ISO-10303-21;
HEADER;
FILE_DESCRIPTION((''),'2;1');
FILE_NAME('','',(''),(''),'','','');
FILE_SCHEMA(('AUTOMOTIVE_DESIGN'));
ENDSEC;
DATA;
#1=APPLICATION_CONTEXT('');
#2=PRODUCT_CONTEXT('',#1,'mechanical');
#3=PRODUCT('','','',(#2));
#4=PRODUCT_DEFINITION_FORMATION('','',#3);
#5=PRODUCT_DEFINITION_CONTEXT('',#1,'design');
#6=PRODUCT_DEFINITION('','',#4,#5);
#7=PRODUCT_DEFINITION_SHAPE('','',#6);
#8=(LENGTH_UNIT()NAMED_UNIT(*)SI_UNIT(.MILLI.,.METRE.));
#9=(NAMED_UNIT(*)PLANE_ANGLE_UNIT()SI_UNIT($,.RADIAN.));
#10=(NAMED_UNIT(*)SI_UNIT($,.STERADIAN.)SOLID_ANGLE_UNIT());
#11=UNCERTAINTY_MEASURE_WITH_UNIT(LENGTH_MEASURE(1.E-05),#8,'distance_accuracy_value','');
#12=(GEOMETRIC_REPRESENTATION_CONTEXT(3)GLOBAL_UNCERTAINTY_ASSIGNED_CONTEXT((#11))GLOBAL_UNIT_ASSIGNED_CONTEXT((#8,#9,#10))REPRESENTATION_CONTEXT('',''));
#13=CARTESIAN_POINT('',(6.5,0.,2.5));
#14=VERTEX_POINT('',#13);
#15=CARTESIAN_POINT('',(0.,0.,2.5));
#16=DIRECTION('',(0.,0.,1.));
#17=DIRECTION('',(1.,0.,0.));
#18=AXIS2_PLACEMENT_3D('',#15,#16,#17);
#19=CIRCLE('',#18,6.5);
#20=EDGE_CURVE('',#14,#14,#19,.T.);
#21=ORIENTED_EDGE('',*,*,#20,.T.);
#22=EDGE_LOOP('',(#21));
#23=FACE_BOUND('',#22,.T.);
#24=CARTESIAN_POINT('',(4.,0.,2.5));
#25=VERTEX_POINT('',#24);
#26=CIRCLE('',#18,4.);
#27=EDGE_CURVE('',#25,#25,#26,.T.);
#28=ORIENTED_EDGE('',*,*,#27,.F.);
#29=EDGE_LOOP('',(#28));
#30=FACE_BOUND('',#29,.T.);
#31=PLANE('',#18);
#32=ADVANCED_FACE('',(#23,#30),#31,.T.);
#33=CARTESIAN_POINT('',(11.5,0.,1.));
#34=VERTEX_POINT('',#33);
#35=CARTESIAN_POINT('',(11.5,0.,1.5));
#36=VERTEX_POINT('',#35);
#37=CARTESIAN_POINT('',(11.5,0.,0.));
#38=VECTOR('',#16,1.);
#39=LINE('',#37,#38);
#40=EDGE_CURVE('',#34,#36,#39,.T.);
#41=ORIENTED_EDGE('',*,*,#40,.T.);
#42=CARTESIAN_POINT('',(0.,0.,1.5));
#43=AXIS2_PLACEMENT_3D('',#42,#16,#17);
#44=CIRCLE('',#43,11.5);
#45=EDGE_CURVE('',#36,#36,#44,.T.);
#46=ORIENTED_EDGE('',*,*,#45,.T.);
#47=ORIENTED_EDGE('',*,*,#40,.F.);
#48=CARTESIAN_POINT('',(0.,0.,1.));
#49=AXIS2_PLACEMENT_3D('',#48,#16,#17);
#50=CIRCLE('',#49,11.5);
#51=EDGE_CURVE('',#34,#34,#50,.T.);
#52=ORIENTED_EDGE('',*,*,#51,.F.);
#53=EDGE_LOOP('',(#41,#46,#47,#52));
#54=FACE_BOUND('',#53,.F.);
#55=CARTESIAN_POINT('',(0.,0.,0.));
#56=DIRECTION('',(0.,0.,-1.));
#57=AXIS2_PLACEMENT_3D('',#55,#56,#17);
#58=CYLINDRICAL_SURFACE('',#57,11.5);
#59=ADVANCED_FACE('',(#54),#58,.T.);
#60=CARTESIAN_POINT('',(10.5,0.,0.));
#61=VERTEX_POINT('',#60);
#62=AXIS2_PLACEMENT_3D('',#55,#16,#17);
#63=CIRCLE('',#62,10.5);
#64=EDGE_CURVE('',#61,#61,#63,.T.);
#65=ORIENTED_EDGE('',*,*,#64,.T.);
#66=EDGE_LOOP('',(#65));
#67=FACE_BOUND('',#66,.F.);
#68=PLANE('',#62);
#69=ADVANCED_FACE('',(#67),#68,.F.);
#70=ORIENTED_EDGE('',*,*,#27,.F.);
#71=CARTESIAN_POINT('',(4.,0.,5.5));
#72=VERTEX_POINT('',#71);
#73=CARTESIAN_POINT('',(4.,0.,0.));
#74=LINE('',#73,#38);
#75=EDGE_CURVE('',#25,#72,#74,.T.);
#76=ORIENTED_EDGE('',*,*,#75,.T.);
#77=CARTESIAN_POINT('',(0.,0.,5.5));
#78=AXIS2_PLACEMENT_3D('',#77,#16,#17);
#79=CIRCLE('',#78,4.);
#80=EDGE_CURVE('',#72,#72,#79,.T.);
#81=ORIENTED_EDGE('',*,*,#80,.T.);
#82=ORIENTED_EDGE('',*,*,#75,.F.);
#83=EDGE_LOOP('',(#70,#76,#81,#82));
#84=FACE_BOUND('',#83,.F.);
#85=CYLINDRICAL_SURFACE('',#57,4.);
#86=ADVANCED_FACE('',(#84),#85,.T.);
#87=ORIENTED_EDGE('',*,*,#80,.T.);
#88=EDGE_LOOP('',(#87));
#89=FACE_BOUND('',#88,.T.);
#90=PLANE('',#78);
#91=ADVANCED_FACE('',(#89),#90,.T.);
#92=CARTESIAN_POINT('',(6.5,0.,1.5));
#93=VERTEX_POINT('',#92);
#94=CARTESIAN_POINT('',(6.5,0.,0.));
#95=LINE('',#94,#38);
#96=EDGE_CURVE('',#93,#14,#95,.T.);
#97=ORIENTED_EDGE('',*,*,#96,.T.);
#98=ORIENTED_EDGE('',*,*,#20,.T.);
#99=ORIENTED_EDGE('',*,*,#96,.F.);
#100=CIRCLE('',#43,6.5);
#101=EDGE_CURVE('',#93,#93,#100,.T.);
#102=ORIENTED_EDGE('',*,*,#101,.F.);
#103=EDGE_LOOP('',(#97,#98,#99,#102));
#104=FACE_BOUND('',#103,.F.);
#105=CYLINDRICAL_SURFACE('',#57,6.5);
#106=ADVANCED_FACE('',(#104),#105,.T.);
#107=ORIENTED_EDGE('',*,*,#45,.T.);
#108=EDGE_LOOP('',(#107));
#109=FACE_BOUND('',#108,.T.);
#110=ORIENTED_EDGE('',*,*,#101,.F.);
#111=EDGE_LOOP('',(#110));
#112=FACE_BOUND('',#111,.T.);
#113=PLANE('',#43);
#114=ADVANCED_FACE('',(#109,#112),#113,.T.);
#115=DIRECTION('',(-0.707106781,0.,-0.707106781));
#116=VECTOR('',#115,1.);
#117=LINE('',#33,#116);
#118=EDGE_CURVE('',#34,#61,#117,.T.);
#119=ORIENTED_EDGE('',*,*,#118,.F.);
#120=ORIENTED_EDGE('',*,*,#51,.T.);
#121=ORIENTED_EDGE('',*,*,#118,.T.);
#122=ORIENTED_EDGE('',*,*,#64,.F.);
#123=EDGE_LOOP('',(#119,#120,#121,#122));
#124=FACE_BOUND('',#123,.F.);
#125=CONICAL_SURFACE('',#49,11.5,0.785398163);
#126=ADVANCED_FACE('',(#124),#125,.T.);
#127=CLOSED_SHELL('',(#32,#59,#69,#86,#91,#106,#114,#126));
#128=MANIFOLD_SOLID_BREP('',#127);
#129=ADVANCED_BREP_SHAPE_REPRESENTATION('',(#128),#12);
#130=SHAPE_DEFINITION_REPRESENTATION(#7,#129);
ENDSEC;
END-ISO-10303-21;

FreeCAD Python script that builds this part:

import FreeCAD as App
import Part
import Sketcher
from FreeCAD import Vector
Q = App.Units.Quantity


def edges_at(feature, points):
    """Names of the edges that pass closest to the given points."""
    edges = feature.Shape.Edges
    near = lambda p: min(range(len(edges)), key=lambda i: edges[i].distToShape(Part.Vertex(*p))[0])
    return sorted({f"Edge{near(p) + 1}" for p in points})

doc = App.newDocument("Part")
body = doc.addObject("PartDesign::Body", "Body")

sketch1 = doc.addObject("Sketcher::SketchObject", "Sketch")
body.addObject(sketch1)
sketch1.AttachmentSupport = (doc.XY_Plane, [""])
sketch1.MapMode = "FlatFace"
sketch1.addGeometry([
    Part.Circle(Vector(0, 0, 0), Vector(0, 0, 1), 11.5),
    Part.Circle(Vector(0, 0, 0), Vector(0, 0, 1), 6.5),
], False)
sketch1.addConstraint([
    Sketcher.Constraint("Coincident", 0, 3, -1, 1),
    Sketcher.Constraint("Coincident", 1, 3, -1, 1),
    Sketcher.Constraint("Diameter", 0, Q("23 mm")),
    Sketcher.Constraint("Diameter", 1, Q("13 mm")),
])
pad1 = doc.addObject("PartDesign::Pad", "Pad")
body.addObject(pad1)
pad1.Profile = sketch1
pad1.Length = 1.5

sketch2 = doc.addObject("Sketcher::SketchObject", "Sketch001")
body.addObject(sketch2)
sketch2.AttachmentSupport = (doc.XY_Plane, [""])
sketch2.MapMode = "FlatFace"
sketch2.addGeometry([
    Part.Circle(Vector(0, 0, 0), Vector(0, 0, 1), 6.5),
    Part.Circle(Vector(0, 0, 0), Vector(0, 0, 1), 4),
], False)
sketch2.addConstraint([
    Sketcher.Constraint("Coincident", 0, 3, -1, 1),
    Sketcher.Constraint("Coincident", 1, 3, -1, 1),
    Sketcher.Constraint("Diameter", 0, Q("13 mm")),
    Sketcher.Constraint("Diameter", 1, Q("8 mm")),
])
pad2 = doc.addObject("PartDesign::Pad", "Pad001")
body.addObject(pad2)
pad2.Profile = sketch2
pad2.Length = 2.5

sketch3 = doc.addObject("Sketcher::SketchObject", "Sketch002")
body.addObject(sketch3)
sketch3.AttachmentSupport = (doc.XY_Plane, [""])
sketch3.MapMode = "FlatFace"
sketch3.addGeometry(Part.Circle(Vector(0, 0, 0), Vector(0, 0, 1), 4), False)
sketch3.addConstraint([
    Sketcher.Constraint("Coincident", 0, 3, -1, 1),
    Sketcher.Constraint("Diameter", 0, Q("8 mm")),
])
pad3 = doc.addObject("PartDesign::Pad", "Pad002")
body.addObject(pad3)
pad3.Profile = sketch3
pad3.Length = 5.5
doc.recompute()

chamfer = doc.addObject("PartDesign::Chamfer", "Chamfer")
body.addObject(chamfer)
chamfer.Base = (pad3, edges_at(pad3, [(-11.5, 0, 0)]))
chamfer.Size = 1

doc.recompute()
